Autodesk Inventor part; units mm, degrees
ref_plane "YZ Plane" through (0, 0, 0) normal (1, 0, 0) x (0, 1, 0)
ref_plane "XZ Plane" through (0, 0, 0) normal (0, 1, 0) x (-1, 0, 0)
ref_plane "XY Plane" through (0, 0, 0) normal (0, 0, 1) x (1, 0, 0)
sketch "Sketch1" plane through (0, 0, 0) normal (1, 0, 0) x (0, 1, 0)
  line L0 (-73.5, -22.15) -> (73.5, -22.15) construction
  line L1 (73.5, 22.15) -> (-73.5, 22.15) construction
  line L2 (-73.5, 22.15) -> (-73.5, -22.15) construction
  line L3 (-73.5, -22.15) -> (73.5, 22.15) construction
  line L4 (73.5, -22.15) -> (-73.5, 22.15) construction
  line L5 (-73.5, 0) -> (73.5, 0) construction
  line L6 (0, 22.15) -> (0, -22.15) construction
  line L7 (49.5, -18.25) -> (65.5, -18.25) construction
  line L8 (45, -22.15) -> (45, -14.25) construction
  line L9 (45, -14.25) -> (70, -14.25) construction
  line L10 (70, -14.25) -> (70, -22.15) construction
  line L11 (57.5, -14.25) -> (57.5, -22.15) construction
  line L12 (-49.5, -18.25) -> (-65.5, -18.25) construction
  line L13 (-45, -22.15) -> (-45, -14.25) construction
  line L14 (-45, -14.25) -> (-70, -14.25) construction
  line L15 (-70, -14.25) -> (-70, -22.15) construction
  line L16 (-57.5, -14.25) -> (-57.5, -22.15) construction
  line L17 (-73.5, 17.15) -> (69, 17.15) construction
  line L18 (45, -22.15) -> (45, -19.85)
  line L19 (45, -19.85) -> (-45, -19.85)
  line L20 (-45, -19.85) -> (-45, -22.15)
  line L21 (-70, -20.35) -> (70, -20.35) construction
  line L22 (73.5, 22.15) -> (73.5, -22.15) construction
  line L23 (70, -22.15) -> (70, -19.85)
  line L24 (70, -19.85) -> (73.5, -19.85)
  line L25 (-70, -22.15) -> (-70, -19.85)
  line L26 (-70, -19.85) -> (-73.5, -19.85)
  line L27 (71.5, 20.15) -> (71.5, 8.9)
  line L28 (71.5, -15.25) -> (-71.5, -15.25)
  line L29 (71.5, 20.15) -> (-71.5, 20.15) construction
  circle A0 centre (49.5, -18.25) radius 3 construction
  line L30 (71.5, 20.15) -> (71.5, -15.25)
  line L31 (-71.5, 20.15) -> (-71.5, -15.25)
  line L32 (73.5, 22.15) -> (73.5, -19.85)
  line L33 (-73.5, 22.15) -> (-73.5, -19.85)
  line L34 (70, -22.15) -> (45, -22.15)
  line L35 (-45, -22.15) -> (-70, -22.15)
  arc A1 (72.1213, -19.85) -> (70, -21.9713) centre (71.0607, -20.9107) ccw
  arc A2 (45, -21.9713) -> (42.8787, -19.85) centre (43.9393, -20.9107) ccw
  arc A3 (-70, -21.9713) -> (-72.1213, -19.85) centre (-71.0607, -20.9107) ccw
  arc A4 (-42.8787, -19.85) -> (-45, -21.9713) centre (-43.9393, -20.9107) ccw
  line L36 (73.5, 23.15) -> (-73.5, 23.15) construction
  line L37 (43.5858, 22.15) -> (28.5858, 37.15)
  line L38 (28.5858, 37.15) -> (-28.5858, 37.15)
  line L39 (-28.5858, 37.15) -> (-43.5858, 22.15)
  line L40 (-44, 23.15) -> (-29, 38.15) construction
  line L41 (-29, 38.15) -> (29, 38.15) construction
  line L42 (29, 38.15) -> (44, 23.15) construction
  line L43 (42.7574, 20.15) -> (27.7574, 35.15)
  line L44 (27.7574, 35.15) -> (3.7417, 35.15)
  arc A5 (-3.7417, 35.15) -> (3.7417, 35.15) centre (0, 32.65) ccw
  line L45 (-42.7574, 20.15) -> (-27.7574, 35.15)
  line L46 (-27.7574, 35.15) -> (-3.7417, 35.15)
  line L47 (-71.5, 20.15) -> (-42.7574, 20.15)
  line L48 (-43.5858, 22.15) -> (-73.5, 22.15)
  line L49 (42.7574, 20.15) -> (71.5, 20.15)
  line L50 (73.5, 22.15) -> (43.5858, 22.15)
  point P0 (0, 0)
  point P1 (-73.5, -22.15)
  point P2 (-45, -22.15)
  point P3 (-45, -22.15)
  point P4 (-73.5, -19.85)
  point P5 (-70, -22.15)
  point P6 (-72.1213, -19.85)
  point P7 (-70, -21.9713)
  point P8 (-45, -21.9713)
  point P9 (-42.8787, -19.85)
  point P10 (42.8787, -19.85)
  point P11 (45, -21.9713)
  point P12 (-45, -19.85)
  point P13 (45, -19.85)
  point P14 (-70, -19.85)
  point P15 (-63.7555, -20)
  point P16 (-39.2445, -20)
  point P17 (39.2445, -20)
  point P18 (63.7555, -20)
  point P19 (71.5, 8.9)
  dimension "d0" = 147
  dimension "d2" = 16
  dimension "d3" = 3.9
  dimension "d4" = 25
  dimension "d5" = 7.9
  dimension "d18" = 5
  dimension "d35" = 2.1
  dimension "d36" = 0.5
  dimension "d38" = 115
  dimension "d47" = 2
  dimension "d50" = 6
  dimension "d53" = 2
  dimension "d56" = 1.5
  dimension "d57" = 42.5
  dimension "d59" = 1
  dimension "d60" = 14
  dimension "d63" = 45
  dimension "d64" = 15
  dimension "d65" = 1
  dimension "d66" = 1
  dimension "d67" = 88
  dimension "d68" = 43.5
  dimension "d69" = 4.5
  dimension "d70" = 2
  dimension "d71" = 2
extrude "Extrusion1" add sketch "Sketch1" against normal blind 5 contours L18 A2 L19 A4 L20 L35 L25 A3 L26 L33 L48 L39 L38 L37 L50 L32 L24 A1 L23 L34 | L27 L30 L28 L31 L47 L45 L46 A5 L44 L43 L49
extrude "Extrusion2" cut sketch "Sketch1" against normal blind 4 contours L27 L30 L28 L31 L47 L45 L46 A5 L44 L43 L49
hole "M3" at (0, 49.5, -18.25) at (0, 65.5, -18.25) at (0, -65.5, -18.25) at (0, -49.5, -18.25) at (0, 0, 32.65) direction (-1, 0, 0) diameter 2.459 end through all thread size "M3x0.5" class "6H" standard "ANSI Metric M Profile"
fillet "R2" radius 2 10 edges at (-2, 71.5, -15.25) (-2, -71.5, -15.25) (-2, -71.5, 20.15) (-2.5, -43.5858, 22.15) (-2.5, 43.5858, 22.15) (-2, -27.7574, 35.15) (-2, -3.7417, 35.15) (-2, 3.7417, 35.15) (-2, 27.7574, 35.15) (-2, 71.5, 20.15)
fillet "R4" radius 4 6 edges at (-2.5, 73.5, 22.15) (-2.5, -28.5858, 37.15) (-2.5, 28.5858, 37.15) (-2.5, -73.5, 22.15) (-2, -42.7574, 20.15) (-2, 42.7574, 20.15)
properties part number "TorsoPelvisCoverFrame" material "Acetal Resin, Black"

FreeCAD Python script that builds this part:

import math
import FreeCAD as App
import Part
import Sketcher

V = App.Vector


def edges_at(feature, points):
    """Names of the edges that pass closest to the given points."""
    edges = feature.Shape.Edges
    near = lambda p: min(range(len(edges)), key=lambda i: edges[i].distToShape(Part.Vertex(*p))[0])
    return sorted({f"Edge{near(p) + 1}" for p in points})

doc = App.newDocument("Part")
body = doc.addObject("PartDesign::Body", "Body")

sketch1 = doc.addObject("Sketcher::SketchObject", "Sketch")
body.addObject(sketch1)
sketch1.AttachmentSupport = (doc.YZ_Plane, [""])
sketch1.MapMode = "FlatFace"
sketch1.addGeometry([
    Part.LineSegment(V(45, -21.97, 0), V(45, -22.15, 0)),
    Part.LineSegment(V(45, -22.15, 0), V(70, -22.15, 0)),
    Part.LineSegment(V(70, -22.15, 0), V(70, -21.97, 0)),
    Part.ArcOfCircle(Part.Circle(V(71.06, -20.91, 0), V(0, 0, 1), 1.5), math.radians(45), math.radians(225)),
    Part.LineSegment(V(72.12, -19.85, 0), V(73.5, -19.85, 0)),
    Part.LineSegment(V(73.5, -19.85, 0), V(73.5, 22.15, 0)),
    Part.LineSegment(V(73.5, 22.15, 0), V(43.59, 22.15, 0)),
    Part.LineSegment(V(43.59, 22.15, 0), V(28.59, 37.15, 0)),
    Part.LineSegment(V(28.59, 37.15, 0), V(-28.59, 37.15, 0)),
    Part.LineSegment(V(-28.59, 37.15, 0), V(-43.59, 22.15, 0)),
    Part.LineSegment(V(-43.59, 22.15, 0), V(-73.5, 22.15, 0)),
    Part.LineSegment(V(-73.5, 22.15, 0), V(-73.5, -19.85, 0)),
    Part.LineSegment(V(-73.5, -19.85, 0), V(-72.12, -19.85, 0)),
    Part.ArcOfCircle(Part.Circle(V(-71.06, -20.91, 0), V(0, 0, 1), 1.5), math.radians(-45), math.radians(135)),
    Part.LineSegment(V(-70, -21.97, 0), V(-70, -22.15, 0)),
    Part.LineSegment(V(-70, -22.15, 0), V(-45, -22.15, 0)),
    Part.LineSegment(V(-45, -22.15, 0), V(-45, -21.97, 0)),
    Part.ArcOfCircle(Part.Circle(V(-43.94, -20.91, 0), V(0, 0, 1), 1.5), math.radians(45), math.radians(225)),
    Part.LineSegment(V(-42.88, -19.85, 0), V(42.88, -19.85, 0)),
    Part.ArcOfCircle(Part.Circle(V(43.94, -20.91, 0), V(0, 0, 1), 1.5), math.radians(-45), math.radians(135)),
], False)
sketch1.addConstraint([
    Sketcher.Constraint("Coincident", 0, 2, 1, 1),
    Sketcher.Constraint("Coincident", 1, 2, 2, 1),
    Sketcher.Constraint("Coincident", 2, 2, 3, 2),
    Sketcher.Constraint("Coincident", 3, 1, 4, 1),
    Sketcher.Constraint("Coincident", 4, 2, 5, 1),
    Sketcher.Constraint("Coincident", 5, 2, 6, 1),
    Sketcher.Constraint("Coincident", 6, 2, 7, 1),
    Sketcher.Constraint("Coincident", 7, 2, 8, 1),
    Sketcher.Constraint("Coincident", 8, 2, 9, 1),
    Sketcher.Constraint("Coincident", 9, 2, 10, 1),
    Sketcher.Constraint("Coincident", 10, 2, 11, 1),
    Sketcher.Constraint("Coincident", 11, 2, 12, 1),
    Sketcher.Constraint("Coincident", 12, 2, 13, 2),
    Sketcher.Constraint("Coincident", 13, 1, 14, 1),
    Sketcher.Constraint("Coincident", 14, 2, 15, 1),
    Sketcher.Constraint("Coincident", 15, 2, 16, 1),
    Sketcher.Constraint("Coincident", 16, 2, 17, 2),
    Sketcher.Constraint("Coincident", 17, 1, 18, 1),
    Sketcher.Constraint("Coincident", 18, 2, 19, 2),
    Sketcher.Constraint("Coincident", 19, 1, 0, 1),
    Sketcher.Constraint("Vertical", 0),
    Sketcher.Constraint("Horizontal", 1),
    Sketcher.Constraint("Vertical", 2),
    Sketcher.Constraint("Horizontal", 4),
    Sketcher.Constraint("Vertical", 5),
    Sketcher.Constraint("Horizontal", 6),
    Sketcher.Constraint("Horizontal", 8),
    Sketcher.Constraint("Horizontal", 10),
    Sketcher.Constraint("Vertical", 11),
    Sketcher.Constraint("Horizontal", 12),
    Sketcher.Constraint("Vertical", 14),
    Sketcher.Constraint("Horizontal", 15),
    Sketcher.Constraint("Vertical", 16),
    Sketcher.Constraint("Horizontal", 18),
    Sketcher.Constraint("Equal", 3, 13),
    Sketcher.Constraint("Equal", 13, 17),
    Sketcher.Constraint("Equal", 17, 19),
    Sketcher.Constraint("Symmetric", 3, 3, 13, 3, -2),
    Sketcher.Constraint("Symmetric", 17, 3, 19, 3, -2),
    Sketcher.Constraint("Symmetric", 6, 2, 9, 2, -2),
    Sketcher.Constraint("Symmetric", 4, 2, 11, 2, -2),
    Sketcher.Constraint("Symmetric", 1, 2, 14, 2, -2),
    Sketcher.Constraint("Perpendicular", 7, 9),
    Sketcher.Constraint("Horizontal", 13, 3, 17, 3),
    Sketcher.Constraint("Horizontal", 13, 1, 16, 2),
    Sketcher.Constraint("Horizontal", 12, 2, 17, 1),
    Sketcher.Constraint("Horizontal", 16, 2, 19, 1),
    Sketcher.Constraint("Equal", 7, 9),
    Sketcher.Constraint("Radius", 3, 1.5),
    Sketcher.Constraint("DistanceX", 1, 1, 1, 2, 25.0),
    Sketcher.Constraint("DistanceX", -1, 1, 0, 2, 45.0),
    Sketcher.Constraint("DistanceX", 7, 2, 6, 2, 15.0),
    Sketcher.Constraint("DistanceY", 5, 1, 5, 2, 42.0),
    Sketcher.Constraint("DistanceX", -1, 1, 4, 2, 73.5),
    Sketcher.Constraint("DistanceY", 1, 2, 3, 1, 2.3),
    Sketcher.Constraint("DistanceY", 0, 2, -1, 1, 22.15),
    Sketcher.Constraint("DistanceX", 4, 1, 4, 2, 1.3787),
    Sketcher.Constraint("DistanceX", 6, 2, 6, 1, 29.9142),
    Sketcher.Constraint("DistanceX", 19, 3, 3, 1, 28.182),
])
pad1 = doc.addObject("PartDesign::Pad", "Pad")
body.addObject(pad1)
pad1.Profile = sketch1
pad1.Length = 5
pad1.Reversed = True

sketch2 = doc.addObject("Sketcher::SketchObject", "Sketch001")
body.addObject(sketch2)
sketch2.AttachmentSupport = (doc.YZ_Plane, [""])
sketch2.MapMode = "FlatFace"
sketch2.addGeometry([
    Part.LineSegment(V(71.5, -15.2, 0), V(71.5, 20.1, 0)),
    Part.LineSegment(V(71.5, 20.1, 0), V(42.8, 20.1, 0)),
    Part.LineSegment(V(42.8, 20.1, 0), V(27.8, 35.1, 0)),
    Part.LineSegment(V(27.8, 35.1, 0), V(3.7, 35.1, 0)),
    Part.ArcOfCircle(Part.Circle(V(0, 32.6, 0), V(0, 0, 1), 4.5), math.radians(146), math.radians(394)),
    Part.LineSegment(V(-3.7, 35.1, 0), V(-27.8, 35.1, 0)),
    Part.LineSegment(V(-27.8, 35.1, 0), V(-42.8, 20.1, 0)),
    Part.LineSegment(V(-42.8, 20.1, 0), V(-71.5, 20.1, 0)),
    Part.LineSegment(V(-71.5, 20.1, 0), V(-71.5, -15.2, 0)),
    Part.LineSegment(V(-71.5, -15.2, 0), V(71.5, -15.2, 0)),
], False)
sketch2.addConstraint([
    Sketcher.Constraint("Coincident", 0, 2, 1, 1),
    Sketcher.Constraint("Coincident", 1, 2, 2, 1),
    Sketcher.Constraint("Coincident", 2, 2, 3, 1),
    Sketcher.Constraint("Coincident", 3, 2, 4, 2),
    Sketcher.Constraint("Coincident", 4, 1, 5, 1),
    Sketcher.Constraint("Coincident", 5, 2, 6, 1),
    Sketcher.Constraint("Coincident", 6, 2, 7, 1),
    Sketcher.Constraint("Coincident", 7, 2, 8, 1),
    Sketcher.Constraint("Coincident", 8, 2, 9, 1),
    Sketcher.Constraint("Coincident", 9, 2, 0, 1),
    Sketcher.Constraint("Vertical", 0),
    Sketcher.Constraint("Horizontal", 1),
    Sketcher.Constraint("Horizontal", 3),
    Sketcher.Constraint("Horizontal", 5),
    Sketcher.Constraint("Horizontal", 7),
    Sketcher.Constraint("Vertical", 8),
    Sketcher.Constraint("Horizontal", 9),
    Sketcher.Constraint("Symmetric", 3, 2, 4, 1, -2),
    Sketcher.Constraint("Symmetric", 1, 2, 6, 2, -2),
    Sketcher.Constraint("Perpendicular", 2, 6),
    Sketcher.Constraint("Equal", 3, 5),
    Sketcher.Constraint("Equal", 1, 7),
    Sketcher.Constraint("Radius", 4, 4.5),
    Sketcher.Constraint("DistanceX", 2, 2, 1, 2, 15.0),
    Sketcher.Constraint("DistanceX", 9, 1, 9, 2, 143.0),
    Sketcher.Constraint("DistanceY", 0, 1, 0, 2, 35.4),
    Sketcher.Constraint("DistanceY", 0, 2, 4, 3, 12.5),
    Sketcher.Constraint("DistanceY", -1, 1, 4, 3, 32.65),
    Sketcher.Constraint("DistanceX", 1, 2, 1, 1, 28.7426),
])
pocket1 = doc.addObject("PartDesign::Pocket", "Pocket")
body.addObject(pocket1)
pocket1.Profile = sketch2
pocket1.Length = 4

sketch3 = doc.addObject("Sketcher::SketchObject", "Sketch002")
body.addObject(sketch3)
sketch3.AttachmentSupport = (doc.YZ_Plane, [""])
sketch3.MapMode = "FlatFace"
sketch3.addGeometry([
    Part.Circle(V(49.5, -18.2, 0), V(0, 0, 1), 1.2),
    Part.Circle(V(65.5, -18.2, 0), V(0, 0, 1), 1.2),
    Part.Circle(V(-65.5, -18.2, 0), V(0, 0, 1), 1.2),
    Part.Circle(V(-49.5, -18.2, 0), V(0, 0, 1), 1.2),
    Part.Circle(V(0, 32.6, 0), V(0, 0, 1), 1.2),
], False)
sketch3.addConstraint([
    Sketcher.Constraint("Equal", 0, 1),
    Sketcher.Constraint("Equal", 1, 2),
    Sketcher.Constraint("Equal", 2, 3),
    Sketcher.Constraint("Equal", 3, 4),
    Sketcher.Constraint("Symmetric", 1, 3, 2, 3, -2),
    Sketcher.Constraint("Symmetric", 0, 3, 3, 3, -2),
    Sketcher.Constraint("PointOnObject", 4, 3, -2),
    Sketcher.Constraint("Horizontal", 0, 3, 1, 3),
    Sketcher.Constraint("Diameter", 0, 2.459),
    Sketcher.Constraint("DistanceX", 0, 3, 1, 3, 16.0),
    Sketcher.Constraint("DistanceX", 2, 3, 0, 3, 115.0),
    Sketcher.Constraint("DistanceY", 0, 3, 4, 3, 50.9),
    Sketcher.Constraint("DistanceY", 0, 3, -1, 1, 18.25),
])
doc.recompute()
hole = doc.addObject("PartDesign::Hole", "Hole")
body.addObject(hole)
hole.Profile = sketch3
hole.ThreadType = "None"
hole.Diameter = 2.459
hole.DepthType = "ThroughAll"
doc.recompute()

fillet = doc.addObject("PartDesign::Fillet", "Fillet")
body.addObject(fillet)
fillet.Base = (hole, edges_at(hole, [
    (-2, 71.5, -15.25),
    (-2, -71.5, -15.25),
    (-2, -71.5, 20.15),
    (-2.5, -43.586, 22.15),
    (-2.5, 43.586, 22.15),
    (-2, -27.757, 35.15),
    (-2, -3.742, 35.15),
    (-2, 3.742, 35.15),
    (-2, 27.757, 35.15),
    (-2, 71.5, 20.15),
]))
fillet.Radius = 2
doc.recompute()

fillet2 = doc.addObject("PartDesign::Fillet", "Fillet001")
body.addObject(fillet2)
fillet2.Base = (fillet, edges_at(fillet, [
    (-2.5, 73.5, 22.15),
    (-2.5, -28.586, 37.15),
    (-2.5, 28.586, 37.15),
    (-2.5, -73.5, 22.15),
    (-2, -42.757, 20.15),
    (-2, 42.757, 20.15),
]))
fillet2.Radius = 4

doc.recompute()
